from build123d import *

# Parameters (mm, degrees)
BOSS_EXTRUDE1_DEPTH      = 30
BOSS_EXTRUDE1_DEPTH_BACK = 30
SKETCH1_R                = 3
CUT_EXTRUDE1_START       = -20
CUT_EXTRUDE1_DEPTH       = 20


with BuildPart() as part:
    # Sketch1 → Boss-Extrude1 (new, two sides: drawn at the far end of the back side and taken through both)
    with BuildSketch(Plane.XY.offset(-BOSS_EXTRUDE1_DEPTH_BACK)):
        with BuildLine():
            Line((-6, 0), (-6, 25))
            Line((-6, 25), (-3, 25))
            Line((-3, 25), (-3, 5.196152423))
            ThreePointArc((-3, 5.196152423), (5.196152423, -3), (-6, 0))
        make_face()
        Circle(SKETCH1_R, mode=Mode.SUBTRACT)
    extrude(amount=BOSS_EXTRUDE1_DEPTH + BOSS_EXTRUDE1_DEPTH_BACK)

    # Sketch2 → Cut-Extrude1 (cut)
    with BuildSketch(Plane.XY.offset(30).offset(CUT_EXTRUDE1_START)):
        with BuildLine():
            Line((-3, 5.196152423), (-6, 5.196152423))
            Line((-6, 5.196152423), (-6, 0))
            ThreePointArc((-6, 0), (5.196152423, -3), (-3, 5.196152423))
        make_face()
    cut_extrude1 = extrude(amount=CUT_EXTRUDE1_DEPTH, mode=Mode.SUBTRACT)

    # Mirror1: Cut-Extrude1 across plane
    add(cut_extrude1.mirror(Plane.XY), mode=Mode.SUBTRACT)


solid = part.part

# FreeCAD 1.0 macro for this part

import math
import FreeCAD as App
import Part
import Sketcher

V = App.Vector
Q = App.Units.Quantity

doc = App.newDocument("Part")
body = doc.addObject("PartDesign::Body", "Body")

# Sketch on XY plane
sketch1 = body.newObject("Sketcher::SketchObject", "Sketch")
sketch1.AttachmentSupport = (doc.getObject("XY_Plane"), [""])
sketch1.MapMode = "FlatFace"
sketch1.addGeometry([
    Part.LineSegment(V(-6, 25, 0), V(-6, 0, 0)),  # 0
    Part.ArcOfCircle(Part.Circle(V(0, 0, 0), V(0, 0, 1), 6), math.radians(180), math.radians(480)),  # 1
    Part.LineSegment(V(-3, 5.2, 0), V(-3, 25, 0)),  # 2
    Part.LineSegment(V(-3, 25, 0), V(-6, 25, 0)),  # 3
    Part.Circle(V(0, 0, 0), V(0, 0, 1), 3),  # 4
], False)
sketch1.addConstraint([
    Sketcher.Constraint("Tangent", 0, 2, 1, 1),
    Sketcher.Constraint("Coincident", 1, 2, 2, 1),
    Sketcher.Constraint("Coincident", 2, 2, 3, 1),
    Sketcher.Constraint("Coincident", 3, 2, 0, 1),
    Sketcher.Constraint("Vertical", 0),
    Sketcher.Constraint("Vertical", 2),
    Sketcher.Constraint("Horizontal", 3),
    Sketcher.Constraint("Coincident", 1, 3, -1, 1),
    Sketcher.Constraint("Coincident", 4, 3, -1, 1),
    Sketcher.Constraint("Diameter", 4, Q("6 mm")),
    Sketcher.Constraint("Radius", 1, Q("6 mm")),
    Sketcher.Constraint("DistanceX", 3, 2, 3, 1, Q("3 mm")),
    Sketcher.Constraint("DistanceY", 0, 2, 0, 1, Q("25 mm")),
])
pad1 = body.newObject("PartDesign::Pad", "Pad")
pad1.Profile = sketch1
pad1.Type = "TwoLengths"
pad1.Length = 30
pad1.Length2 = 30

# Sketch on XY plane
sketch2 = body.newObject("Sketcher::SketchObject", "Sketch001")
sketch2.AttachmentSupport = (doc.getObject("XY_Plane"), [""])
sketch2.MapMode = "FlatFace"
sketch2.AttachmentOffset = App.Placement(V(0, 0, 10), App.Rotation())
sketch2.addGeometry([
    Part.LineSegment(V(-3, 5.2, 0), V(-6, 5.2, 0)),
    Part.LineSegment(V(-6, 5.2, 0), V(-6, 0, 0)),
    Part.ArcOfCircle(Part.Circle(V(0, 0, 0), V(0, 0, 1), 6), math.radians(180), math.radians(480)),
], False)
sketch2.addConstraint([
    Sketcher.Constraint("Coincident", 0, 2, 1, 1),
    Sketcher.Constraint("Tangent", 1, 2, 2, 1),
    Sketcher.Constraint("Coincident", 2, 2, 0, 1),
    Sketcher.Constraint("Horizontal", 0),
    Sketcher.Constraint("Vertical", 1),
    Sketcher.Constraint("Coincident", 2, 3, -1, 1),
    Sketcher.Constraint("Radius", 2, Q("6 mm")),
    Sketcher.Constraint("DistanceX", 0, 2, 0, 1, Q("3 mm")),
])
pocket1 = body.newObject("PartDesign::Pocket", "Pocket")
pocket1.Profile = sketch2
pocket1.Length = 20
pocket1.Reversed = True
doc.recompute()

mirrored = body.newObject("PartDesign::Mirrored", "Mirrored")
mirrored.Originals = [pocket1]
mirrored.MirrorPlane = (doc.getObject("XY_Plane"), [""])
body.Tip = mirrored

doc.recompute()
